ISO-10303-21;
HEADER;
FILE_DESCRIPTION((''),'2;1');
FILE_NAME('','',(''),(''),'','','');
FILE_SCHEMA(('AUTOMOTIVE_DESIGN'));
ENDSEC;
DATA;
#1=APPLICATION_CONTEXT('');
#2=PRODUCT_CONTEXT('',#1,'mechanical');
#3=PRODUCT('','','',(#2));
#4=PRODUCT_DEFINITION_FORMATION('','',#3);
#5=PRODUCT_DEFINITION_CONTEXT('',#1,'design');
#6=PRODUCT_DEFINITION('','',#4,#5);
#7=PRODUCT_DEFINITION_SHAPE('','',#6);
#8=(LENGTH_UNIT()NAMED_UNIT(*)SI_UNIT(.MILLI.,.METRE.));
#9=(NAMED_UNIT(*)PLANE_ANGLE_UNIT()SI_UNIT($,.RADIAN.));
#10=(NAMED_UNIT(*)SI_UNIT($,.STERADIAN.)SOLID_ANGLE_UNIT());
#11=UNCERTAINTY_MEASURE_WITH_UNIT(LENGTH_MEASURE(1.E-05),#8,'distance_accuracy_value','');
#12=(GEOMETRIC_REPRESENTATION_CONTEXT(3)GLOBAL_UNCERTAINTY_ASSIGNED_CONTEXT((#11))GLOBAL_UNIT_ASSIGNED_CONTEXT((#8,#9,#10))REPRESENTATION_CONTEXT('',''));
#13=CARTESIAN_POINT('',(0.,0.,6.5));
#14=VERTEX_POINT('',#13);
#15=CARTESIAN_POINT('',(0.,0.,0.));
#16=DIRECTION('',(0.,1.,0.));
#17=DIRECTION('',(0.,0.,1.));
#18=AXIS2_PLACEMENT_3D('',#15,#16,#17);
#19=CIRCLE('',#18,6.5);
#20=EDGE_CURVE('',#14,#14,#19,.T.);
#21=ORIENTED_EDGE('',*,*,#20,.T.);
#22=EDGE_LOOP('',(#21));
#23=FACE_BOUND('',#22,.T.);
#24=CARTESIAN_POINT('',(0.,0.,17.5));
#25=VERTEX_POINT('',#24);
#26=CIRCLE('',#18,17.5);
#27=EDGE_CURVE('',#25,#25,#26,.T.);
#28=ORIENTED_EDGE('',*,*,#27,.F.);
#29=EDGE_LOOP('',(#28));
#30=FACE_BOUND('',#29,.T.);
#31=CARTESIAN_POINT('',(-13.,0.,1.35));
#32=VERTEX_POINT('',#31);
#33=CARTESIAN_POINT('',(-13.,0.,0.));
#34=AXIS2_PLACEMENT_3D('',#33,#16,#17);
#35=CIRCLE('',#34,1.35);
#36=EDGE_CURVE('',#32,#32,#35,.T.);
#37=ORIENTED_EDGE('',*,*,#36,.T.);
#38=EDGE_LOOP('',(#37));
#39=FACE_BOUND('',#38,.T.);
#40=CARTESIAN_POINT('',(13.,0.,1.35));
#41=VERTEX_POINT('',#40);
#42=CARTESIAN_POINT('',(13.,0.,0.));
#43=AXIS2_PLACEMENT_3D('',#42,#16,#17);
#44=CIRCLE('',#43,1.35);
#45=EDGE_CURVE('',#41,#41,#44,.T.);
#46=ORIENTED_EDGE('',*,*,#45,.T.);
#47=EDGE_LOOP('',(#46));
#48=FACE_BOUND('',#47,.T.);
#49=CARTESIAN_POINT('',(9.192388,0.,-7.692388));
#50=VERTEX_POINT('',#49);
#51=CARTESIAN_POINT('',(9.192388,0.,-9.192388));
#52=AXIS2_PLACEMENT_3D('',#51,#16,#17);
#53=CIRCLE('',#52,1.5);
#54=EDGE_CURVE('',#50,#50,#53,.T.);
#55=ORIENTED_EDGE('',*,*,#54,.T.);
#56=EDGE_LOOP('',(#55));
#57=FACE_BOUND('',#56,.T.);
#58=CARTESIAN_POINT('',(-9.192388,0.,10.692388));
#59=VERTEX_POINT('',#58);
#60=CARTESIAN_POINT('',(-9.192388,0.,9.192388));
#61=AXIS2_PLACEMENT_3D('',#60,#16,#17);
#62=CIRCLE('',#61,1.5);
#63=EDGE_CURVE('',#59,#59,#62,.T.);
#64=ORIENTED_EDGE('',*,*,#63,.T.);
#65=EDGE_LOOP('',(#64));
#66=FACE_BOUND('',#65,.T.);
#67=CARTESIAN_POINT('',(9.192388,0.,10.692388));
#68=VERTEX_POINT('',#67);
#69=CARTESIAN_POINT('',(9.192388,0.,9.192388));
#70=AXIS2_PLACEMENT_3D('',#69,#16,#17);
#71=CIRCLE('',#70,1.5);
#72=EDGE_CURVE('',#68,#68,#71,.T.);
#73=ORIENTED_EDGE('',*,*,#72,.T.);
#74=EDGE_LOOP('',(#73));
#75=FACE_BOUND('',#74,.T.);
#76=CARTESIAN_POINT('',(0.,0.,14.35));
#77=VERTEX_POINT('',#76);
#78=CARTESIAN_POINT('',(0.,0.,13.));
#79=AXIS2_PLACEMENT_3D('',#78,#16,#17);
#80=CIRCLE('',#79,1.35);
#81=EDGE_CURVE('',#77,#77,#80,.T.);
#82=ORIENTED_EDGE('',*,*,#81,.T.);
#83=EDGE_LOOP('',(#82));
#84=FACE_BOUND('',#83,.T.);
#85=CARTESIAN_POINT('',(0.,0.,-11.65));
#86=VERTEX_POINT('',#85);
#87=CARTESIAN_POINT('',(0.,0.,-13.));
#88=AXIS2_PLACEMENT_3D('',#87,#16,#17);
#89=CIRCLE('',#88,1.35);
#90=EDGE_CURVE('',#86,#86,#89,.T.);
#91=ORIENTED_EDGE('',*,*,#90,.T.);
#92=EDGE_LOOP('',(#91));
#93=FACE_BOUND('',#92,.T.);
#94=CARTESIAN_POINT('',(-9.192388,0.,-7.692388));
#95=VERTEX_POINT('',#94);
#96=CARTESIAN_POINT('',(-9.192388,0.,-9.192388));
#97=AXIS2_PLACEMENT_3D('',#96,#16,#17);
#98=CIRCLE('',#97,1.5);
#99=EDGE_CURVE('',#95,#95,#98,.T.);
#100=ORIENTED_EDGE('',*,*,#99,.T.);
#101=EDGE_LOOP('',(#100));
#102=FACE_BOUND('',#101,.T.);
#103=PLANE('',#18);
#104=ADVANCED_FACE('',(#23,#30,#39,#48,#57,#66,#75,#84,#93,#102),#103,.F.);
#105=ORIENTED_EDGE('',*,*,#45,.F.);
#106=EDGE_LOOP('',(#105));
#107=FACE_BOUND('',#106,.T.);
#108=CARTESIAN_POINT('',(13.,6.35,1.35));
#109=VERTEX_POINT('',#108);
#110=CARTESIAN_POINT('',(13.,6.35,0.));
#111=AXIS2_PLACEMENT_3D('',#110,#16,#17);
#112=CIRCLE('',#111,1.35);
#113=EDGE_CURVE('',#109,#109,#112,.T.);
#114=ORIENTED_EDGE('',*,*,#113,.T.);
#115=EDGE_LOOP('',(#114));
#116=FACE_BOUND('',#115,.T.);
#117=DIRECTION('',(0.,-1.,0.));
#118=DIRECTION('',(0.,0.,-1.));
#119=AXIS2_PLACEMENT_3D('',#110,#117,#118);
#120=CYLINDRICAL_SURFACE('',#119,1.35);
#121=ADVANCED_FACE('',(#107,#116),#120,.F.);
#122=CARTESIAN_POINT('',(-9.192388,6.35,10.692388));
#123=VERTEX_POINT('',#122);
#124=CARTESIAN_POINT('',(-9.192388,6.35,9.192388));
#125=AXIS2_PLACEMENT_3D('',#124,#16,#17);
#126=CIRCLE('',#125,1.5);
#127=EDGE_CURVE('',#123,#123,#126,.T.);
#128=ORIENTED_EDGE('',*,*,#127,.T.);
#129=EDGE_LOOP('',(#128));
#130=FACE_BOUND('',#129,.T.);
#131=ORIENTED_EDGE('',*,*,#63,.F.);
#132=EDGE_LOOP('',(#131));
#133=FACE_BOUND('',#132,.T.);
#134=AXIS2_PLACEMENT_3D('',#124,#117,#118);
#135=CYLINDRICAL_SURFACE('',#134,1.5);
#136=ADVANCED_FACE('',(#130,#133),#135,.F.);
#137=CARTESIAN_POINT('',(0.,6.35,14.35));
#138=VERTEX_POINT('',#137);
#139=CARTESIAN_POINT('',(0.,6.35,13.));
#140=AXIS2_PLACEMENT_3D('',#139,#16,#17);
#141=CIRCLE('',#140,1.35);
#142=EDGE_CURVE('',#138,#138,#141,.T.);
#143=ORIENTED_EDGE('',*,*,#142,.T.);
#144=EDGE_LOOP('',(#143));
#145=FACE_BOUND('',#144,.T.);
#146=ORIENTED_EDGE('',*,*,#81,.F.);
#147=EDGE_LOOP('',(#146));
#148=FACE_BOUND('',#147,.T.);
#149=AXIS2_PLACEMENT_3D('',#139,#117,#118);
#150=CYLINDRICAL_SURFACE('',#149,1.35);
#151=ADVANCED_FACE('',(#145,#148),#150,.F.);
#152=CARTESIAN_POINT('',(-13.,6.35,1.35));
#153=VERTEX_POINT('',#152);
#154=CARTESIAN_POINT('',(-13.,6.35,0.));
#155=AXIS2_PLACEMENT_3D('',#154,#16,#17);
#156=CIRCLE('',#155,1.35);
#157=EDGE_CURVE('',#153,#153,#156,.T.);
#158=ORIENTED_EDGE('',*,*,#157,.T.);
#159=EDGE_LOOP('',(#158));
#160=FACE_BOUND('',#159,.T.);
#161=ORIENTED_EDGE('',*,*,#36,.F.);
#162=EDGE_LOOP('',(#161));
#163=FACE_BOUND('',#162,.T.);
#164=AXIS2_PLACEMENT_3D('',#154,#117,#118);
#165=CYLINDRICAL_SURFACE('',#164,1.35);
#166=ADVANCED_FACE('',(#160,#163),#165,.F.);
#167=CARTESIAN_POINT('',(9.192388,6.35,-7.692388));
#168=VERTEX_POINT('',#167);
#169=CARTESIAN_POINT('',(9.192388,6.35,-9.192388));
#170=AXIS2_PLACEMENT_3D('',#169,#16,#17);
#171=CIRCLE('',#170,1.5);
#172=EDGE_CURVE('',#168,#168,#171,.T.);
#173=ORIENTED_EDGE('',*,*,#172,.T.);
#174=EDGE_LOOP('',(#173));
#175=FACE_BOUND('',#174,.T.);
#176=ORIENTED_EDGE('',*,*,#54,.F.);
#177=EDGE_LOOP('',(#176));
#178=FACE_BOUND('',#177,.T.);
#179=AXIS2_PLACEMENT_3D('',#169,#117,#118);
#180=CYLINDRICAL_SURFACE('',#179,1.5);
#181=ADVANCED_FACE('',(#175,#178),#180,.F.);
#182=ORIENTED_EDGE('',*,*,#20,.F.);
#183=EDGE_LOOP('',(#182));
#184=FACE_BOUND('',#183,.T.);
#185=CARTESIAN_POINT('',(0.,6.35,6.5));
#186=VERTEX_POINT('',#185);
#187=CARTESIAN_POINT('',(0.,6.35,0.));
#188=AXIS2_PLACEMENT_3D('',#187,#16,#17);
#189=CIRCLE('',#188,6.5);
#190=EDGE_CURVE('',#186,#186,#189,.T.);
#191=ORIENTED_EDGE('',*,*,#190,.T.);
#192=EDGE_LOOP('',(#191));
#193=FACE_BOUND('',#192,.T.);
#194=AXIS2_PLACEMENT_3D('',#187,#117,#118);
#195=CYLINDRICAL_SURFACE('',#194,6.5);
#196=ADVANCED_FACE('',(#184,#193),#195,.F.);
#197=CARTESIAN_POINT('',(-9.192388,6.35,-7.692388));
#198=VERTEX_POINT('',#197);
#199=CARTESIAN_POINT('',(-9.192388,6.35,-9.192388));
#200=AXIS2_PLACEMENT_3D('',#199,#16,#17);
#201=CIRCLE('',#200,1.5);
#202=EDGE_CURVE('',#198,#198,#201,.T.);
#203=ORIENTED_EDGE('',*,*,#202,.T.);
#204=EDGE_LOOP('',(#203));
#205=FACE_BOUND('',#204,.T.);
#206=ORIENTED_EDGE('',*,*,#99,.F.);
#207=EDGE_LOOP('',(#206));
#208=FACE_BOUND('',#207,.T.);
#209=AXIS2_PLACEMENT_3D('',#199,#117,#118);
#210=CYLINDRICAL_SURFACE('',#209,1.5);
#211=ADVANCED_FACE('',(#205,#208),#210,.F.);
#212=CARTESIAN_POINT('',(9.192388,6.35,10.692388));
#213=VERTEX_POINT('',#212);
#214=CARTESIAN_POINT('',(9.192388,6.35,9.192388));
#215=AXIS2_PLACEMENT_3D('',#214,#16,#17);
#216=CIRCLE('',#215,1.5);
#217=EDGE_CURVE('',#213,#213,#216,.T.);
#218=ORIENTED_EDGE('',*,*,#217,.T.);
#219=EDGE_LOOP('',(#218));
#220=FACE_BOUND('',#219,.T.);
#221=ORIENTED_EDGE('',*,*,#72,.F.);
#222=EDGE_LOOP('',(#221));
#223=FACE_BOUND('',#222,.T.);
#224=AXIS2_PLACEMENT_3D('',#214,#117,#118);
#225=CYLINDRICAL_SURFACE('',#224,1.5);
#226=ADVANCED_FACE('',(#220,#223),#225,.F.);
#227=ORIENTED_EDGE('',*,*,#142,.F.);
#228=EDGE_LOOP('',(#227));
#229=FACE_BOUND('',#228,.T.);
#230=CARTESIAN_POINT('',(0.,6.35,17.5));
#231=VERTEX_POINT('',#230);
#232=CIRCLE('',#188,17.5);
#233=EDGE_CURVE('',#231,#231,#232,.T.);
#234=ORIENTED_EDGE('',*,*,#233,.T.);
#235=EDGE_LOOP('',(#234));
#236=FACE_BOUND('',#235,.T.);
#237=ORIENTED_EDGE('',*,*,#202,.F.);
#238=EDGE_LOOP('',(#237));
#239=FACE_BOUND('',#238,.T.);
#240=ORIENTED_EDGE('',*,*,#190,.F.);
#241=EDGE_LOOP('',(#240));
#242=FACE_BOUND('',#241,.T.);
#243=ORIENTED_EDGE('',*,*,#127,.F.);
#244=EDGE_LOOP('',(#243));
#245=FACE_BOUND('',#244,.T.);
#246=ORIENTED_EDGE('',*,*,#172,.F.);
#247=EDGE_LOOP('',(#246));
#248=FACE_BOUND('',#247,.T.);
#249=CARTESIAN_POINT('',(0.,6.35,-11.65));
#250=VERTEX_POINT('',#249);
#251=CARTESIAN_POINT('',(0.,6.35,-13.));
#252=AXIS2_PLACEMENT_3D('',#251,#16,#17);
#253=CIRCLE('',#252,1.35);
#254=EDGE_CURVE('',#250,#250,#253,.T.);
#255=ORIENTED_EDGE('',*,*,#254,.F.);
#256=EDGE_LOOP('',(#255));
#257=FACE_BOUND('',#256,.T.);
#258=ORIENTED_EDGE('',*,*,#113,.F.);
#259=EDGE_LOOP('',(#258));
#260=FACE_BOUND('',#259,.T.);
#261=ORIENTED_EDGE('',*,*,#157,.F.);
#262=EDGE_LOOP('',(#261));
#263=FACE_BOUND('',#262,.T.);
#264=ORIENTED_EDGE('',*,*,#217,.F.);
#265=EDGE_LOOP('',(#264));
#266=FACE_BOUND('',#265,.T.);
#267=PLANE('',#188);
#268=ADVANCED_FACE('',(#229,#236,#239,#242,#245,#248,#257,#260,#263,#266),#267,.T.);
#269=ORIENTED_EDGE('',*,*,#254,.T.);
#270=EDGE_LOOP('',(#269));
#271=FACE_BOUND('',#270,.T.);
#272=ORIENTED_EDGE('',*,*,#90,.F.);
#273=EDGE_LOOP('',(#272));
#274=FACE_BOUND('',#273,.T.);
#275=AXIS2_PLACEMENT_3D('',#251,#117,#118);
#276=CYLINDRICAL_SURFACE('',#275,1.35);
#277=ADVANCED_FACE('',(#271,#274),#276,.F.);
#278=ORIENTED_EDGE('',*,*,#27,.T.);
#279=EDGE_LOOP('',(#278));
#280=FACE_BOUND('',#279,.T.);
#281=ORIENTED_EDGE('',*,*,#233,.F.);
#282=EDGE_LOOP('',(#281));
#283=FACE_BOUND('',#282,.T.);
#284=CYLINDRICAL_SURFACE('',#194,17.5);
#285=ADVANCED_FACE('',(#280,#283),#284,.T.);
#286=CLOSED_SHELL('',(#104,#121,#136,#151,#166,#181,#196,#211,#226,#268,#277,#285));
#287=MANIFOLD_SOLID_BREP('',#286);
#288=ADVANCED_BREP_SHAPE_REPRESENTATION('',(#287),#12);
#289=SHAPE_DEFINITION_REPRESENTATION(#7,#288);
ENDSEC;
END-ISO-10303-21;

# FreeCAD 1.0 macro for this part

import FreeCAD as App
import Part
import Sketcher

V = App.Vector

doc = App.newDocument("Part")
body = doc.addObject("PartDesign::Body", "Body")

sketch1 = body.newObject("Sketcher::SketchObject", "Sketch")
sketch1.AttachmentSupport = (doc.getObject("XZ_Plane"), [""])
sketch1.MapMode = "FlatFace"
sketch1.addGeometry([
    Part.Circle(V(0, 0, 0), V(0, 0, 1), 17.5),
    Part.Circle(V(-9.192388, -9.192388, 0), V(0, 0, 1), 1.5),
    Part.Circle(V(0, -13, 0), V(0, 0, 1), 1.35),
    Part.Circle(V(-13, 0, 0), V(0, 0, 1), 1.35),
    Part.Circle(V(-9.192388, 9.192388, 0), V(0, 0, 1), 1.5),
    Part.Circle(V(9.192388, -9.192388, 0), V(0, 0, 1), 1.5),
    Part.Circle(V(13, 0, 0), V(0, 0, 1), 1.35),
    Part.Circle(V(0, 0, 0), V(0, 0, 1), 6.5),
    Part.Circle(V(0, 13, 0), V(0, 0, 1), 1.35),
    Part.Circle(V(9.192388, 9.192388, 0), V(0, 0, 1), 1.5),
], False)
sketch1.addConstraint([
    Sketcher.Constraint("Coincident", 0, 3, -1, 1),
    Sketcher.Constraint("Coincident", 7, 3, -1, 1),
    Sketcher.Constraint("Equal", 2, 3),
    Sketcher.Constraint("Equal", 1, 4),
    Sketcher.Constraint("Equal", 4, 5),
    Sketcher.Constraint("Equal", 3, 6),
    Sketcher.Constraint("Equal", 6, 8),
    Sketcher.Constraint("Equal", 5, 9),
    Sketcher.Constraint("Symmetric", 4, 3, 5, 3, -1, 1),
    Sketcher.Constraint("Symmetric", 3, 3, 6, 3, -1, 1),
    Sketcher.Constraint("Symmetric", 2, 3, 8, 3, -1, 1),
    Sketcher.Constraint("Symmetric", 1, 3, 9, 3, -1, 1),
    Sketcher.Constraint("Symmetric", 1, 3, 5, 3, -2),
    Sketcher.Constraint("PointOnObject", 2, 3, -2),
    Sketcher.Constraint("PointOnObject", 3, 3, -1),
    Sketcher.Constraint("Diameter", 0, 35.0),
    Sketcher.Constraint("Diameter", 1, 3.0),
    Sketcher.Constraint("Diameter", 7, 13.0),
    Sketcher.Constraint("Diameter", 2, 2.7),
    Sketcher.Constraint("DistanceY", 2, 3, -1, 1, 13.0),
    Sketcher.Constraint("DistanceX", 3, 3, -1, 1, 13.0),
    Sketcher.Constraint("DistanceX", 1, 3, -1, 1, 9.192388),
    Sketcher.Constraint("DistanceY", 1, 3, -1, 1, 9.192388),
])
pad1 = body.newObject("PartDesign::Pad", "Pad")
pad1.Profile = sketch1
pad1.Length = 6.35
pad1.Reversed = True

doc.recompute()
